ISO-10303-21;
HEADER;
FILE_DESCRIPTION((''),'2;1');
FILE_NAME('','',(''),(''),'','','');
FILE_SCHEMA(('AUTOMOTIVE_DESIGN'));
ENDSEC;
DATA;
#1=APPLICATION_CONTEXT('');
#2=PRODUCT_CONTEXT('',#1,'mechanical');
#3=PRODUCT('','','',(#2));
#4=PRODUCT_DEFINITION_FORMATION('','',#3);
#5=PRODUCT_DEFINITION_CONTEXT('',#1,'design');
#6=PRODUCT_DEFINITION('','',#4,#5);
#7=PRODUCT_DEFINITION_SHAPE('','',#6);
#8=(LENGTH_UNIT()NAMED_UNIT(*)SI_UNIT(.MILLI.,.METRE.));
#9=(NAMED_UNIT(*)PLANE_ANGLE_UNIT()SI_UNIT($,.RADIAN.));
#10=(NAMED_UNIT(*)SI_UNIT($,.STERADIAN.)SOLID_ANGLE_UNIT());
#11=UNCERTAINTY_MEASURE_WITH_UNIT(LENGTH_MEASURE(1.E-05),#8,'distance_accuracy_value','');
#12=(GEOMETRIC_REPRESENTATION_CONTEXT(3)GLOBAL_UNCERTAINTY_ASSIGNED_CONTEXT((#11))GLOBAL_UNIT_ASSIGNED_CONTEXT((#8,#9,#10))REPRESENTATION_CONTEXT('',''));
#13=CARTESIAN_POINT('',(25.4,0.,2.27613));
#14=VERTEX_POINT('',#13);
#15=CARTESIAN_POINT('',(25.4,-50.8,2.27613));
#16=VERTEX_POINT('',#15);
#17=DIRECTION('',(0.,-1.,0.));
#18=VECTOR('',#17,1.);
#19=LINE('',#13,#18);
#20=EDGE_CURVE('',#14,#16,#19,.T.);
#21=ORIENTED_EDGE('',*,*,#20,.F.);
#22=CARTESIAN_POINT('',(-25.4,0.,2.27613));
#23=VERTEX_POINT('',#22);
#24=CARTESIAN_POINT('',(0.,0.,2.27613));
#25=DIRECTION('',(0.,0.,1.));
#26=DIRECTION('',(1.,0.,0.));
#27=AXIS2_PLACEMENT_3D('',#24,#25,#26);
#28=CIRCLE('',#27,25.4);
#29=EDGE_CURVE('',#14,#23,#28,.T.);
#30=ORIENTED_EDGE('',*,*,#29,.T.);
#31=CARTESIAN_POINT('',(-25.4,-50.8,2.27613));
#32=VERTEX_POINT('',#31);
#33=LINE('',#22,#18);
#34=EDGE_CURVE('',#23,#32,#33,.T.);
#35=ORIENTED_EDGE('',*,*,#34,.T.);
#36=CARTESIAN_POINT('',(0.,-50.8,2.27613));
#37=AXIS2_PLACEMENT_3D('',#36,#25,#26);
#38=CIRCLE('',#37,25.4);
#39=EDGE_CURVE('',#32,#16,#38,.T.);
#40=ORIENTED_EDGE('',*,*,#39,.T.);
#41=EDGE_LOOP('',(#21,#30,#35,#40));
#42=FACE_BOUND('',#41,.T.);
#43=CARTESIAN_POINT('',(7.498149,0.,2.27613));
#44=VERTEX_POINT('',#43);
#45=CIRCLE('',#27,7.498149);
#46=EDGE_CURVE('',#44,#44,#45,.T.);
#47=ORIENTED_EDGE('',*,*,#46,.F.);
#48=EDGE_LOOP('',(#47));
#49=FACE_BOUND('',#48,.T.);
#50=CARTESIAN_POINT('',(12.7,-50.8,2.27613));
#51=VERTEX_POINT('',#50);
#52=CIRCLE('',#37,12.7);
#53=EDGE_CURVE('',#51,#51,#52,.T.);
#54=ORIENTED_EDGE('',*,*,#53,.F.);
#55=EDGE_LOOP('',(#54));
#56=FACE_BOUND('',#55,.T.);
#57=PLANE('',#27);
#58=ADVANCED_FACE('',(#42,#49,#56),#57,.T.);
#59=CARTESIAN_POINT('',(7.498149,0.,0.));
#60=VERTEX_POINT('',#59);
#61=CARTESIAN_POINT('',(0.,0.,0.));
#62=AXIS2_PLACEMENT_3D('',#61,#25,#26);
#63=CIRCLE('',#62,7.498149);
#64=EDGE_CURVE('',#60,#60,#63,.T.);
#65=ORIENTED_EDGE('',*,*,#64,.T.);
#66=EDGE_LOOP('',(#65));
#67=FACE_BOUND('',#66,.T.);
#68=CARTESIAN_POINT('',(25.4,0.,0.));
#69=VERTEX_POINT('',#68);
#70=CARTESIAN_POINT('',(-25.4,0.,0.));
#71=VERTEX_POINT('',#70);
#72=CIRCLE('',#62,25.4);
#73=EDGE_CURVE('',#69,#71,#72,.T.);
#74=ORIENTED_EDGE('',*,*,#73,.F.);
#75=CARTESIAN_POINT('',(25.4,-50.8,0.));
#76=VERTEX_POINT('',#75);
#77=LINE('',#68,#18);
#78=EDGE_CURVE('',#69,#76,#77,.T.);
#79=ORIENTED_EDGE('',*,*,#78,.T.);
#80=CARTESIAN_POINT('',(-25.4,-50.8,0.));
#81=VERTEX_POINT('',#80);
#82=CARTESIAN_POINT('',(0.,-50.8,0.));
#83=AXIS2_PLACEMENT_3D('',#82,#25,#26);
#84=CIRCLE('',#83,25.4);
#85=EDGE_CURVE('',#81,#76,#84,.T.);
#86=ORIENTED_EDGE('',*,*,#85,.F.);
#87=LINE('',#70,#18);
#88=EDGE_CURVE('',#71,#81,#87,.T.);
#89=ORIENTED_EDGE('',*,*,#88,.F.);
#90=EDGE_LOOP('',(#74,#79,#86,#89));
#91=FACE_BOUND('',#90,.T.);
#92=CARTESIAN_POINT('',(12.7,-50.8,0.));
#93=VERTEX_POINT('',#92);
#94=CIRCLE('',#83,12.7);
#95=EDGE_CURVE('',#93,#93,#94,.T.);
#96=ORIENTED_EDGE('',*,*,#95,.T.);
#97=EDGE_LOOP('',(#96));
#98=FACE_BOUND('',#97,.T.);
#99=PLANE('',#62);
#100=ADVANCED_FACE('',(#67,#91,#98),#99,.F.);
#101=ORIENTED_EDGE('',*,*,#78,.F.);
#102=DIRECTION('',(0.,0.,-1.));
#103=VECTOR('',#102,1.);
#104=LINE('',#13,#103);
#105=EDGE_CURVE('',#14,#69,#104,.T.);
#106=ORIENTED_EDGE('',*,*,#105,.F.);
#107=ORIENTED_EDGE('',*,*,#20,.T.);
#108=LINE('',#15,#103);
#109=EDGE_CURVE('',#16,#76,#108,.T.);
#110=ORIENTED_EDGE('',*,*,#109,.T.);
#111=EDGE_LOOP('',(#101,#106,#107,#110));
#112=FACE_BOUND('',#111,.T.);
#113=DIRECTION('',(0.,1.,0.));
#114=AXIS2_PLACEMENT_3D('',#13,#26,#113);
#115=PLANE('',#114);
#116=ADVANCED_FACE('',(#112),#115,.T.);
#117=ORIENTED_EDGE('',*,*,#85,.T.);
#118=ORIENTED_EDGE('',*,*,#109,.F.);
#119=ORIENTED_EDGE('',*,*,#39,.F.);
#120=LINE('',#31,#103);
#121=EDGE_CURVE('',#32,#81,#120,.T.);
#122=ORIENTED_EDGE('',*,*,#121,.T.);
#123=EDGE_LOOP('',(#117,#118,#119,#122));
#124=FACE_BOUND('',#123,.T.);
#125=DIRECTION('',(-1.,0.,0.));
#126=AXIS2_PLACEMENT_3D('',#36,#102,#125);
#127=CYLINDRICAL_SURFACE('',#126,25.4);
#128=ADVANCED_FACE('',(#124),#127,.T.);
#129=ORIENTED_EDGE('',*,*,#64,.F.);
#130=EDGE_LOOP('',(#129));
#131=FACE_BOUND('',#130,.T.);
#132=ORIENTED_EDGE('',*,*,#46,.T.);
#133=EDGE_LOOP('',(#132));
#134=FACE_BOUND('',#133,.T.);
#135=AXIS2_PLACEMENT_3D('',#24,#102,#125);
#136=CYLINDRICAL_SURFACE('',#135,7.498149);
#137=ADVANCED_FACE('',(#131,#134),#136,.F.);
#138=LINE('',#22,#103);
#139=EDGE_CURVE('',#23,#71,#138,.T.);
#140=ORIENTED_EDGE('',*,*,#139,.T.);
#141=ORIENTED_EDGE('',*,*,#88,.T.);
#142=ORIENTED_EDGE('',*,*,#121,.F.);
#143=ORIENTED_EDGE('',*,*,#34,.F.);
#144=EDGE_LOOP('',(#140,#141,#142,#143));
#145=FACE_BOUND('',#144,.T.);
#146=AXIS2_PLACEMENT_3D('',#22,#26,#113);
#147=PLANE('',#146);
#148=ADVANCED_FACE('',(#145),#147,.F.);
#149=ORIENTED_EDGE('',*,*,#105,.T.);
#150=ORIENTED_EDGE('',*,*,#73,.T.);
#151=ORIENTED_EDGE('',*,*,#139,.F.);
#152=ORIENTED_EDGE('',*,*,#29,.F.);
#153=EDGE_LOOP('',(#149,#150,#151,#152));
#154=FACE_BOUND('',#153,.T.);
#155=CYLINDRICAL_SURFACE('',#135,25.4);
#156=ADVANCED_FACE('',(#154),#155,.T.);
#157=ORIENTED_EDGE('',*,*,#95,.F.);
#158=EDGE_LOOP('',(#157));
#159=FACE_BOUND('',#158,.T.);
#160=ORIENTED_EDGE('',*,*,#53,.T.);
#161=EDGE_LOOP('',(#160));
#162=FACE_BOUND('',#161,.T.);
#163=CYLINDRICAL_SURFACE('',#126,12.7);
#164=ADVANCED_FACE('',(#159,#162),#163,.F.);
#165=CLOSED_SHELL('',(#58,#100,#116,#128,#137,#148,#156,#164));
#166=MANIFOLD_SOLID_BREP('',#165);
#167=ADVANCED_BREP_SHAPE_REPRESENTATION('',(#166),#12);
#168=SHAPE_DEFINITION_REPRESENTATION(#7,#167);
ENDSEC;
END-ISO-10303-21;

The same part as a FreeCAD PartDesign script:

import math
import FreeCAD as App
import Part
import Sketcher
Q = App.Units.Quantity

doc = App.newDocument("Part")
body = doc.addObject("PartDesign::Body", "Body")

sketch1 = body.newObject("Sketcher::SketchObject", "Sketch")
sketch1.AttachmentSupport = (doc.getObject("XY_Plane"), [""])
sketch1.MapMode = "FlatFace"
sketch1.addGeometry(Part.ArcOfCircle(Part.Circle(App.Vector(0, -51, 0), App.Vector(0, 0, 1), 25), math.radians(180), math.radians(360)), False)
sketch1.addGeometry(Part.LineSegment(App.Vector(25, -51, 0), App.Vector(25, 0, 0)), False)
sketch1.addGeometry(Part.ArcOfCircle(Part.Circle(App.Vector(0, 0, 0), App.Vector(0, 0, 1), 25), math.radians(0), math.radians(180)), False)
sketch1.addGeometry(Part.LineSegment(App.Vector(-25, 0, 0), App.Vector(-25, -51, 0)), False)
sketch1.addGeometry(Part.Circle(App.Vector(0, -51, 0), App.Vector(0, 0, 1), 13), False)
sketch1.addGeometry(Part.Circle(App.Vector(0, 0, 0), App.Vector(0, 0, 1), 7), False)
sketch1.addConstraint(Sketcher.Constraint("Tangent", 0, 2, 1, 1))
sketch1.addConstraint(Sketcher.Constraint("Tangent", 1, 2, 2, 1))
sketch1.addConstraint(Sketcher.Constraint("Tangent", 2, 2, 3, 1))
sketch1.addConstraint(Sketcher.Constraint("Tangent", 3, 2, 0, 1))
sketch1.addConstraint(Sketcher.Constraint("Vertical", 1))
sketch1.addConstraint(Sketcher.Constraint("Vertical", 3))
sketch1.addConstraint(Sketcher.Constraint("Coincident", 2, 3, -1, 1))
sketch1.addConstraint(Sketcher.Constraint("Coincident", 5, 3, -1, 1))
sketch1.addConstraint(Sketcher.Constraint("Coincident", 4, 3, 0, 3))
sketch1.addConstraint(Sketcher.Constraint("Diameter", 4, Q("1 in")))
sketch1.addConstraint(Sketcher.Constraint("Radius", 0, Q("1 in")))
sketch1.addConstraint(Sketcher.Constraint("DistanceY", 1, 1, 1, 2, Q("2 in")))
sketch1.addConstraint(Sketcher.Constraint("Diameter", 5, 14.996299))
pad1 = body.newObject("PartDesign::Pad", "Pad")
pad1.Profile = sketch1
pad1.Length = 2.27613

doc.recompute()
